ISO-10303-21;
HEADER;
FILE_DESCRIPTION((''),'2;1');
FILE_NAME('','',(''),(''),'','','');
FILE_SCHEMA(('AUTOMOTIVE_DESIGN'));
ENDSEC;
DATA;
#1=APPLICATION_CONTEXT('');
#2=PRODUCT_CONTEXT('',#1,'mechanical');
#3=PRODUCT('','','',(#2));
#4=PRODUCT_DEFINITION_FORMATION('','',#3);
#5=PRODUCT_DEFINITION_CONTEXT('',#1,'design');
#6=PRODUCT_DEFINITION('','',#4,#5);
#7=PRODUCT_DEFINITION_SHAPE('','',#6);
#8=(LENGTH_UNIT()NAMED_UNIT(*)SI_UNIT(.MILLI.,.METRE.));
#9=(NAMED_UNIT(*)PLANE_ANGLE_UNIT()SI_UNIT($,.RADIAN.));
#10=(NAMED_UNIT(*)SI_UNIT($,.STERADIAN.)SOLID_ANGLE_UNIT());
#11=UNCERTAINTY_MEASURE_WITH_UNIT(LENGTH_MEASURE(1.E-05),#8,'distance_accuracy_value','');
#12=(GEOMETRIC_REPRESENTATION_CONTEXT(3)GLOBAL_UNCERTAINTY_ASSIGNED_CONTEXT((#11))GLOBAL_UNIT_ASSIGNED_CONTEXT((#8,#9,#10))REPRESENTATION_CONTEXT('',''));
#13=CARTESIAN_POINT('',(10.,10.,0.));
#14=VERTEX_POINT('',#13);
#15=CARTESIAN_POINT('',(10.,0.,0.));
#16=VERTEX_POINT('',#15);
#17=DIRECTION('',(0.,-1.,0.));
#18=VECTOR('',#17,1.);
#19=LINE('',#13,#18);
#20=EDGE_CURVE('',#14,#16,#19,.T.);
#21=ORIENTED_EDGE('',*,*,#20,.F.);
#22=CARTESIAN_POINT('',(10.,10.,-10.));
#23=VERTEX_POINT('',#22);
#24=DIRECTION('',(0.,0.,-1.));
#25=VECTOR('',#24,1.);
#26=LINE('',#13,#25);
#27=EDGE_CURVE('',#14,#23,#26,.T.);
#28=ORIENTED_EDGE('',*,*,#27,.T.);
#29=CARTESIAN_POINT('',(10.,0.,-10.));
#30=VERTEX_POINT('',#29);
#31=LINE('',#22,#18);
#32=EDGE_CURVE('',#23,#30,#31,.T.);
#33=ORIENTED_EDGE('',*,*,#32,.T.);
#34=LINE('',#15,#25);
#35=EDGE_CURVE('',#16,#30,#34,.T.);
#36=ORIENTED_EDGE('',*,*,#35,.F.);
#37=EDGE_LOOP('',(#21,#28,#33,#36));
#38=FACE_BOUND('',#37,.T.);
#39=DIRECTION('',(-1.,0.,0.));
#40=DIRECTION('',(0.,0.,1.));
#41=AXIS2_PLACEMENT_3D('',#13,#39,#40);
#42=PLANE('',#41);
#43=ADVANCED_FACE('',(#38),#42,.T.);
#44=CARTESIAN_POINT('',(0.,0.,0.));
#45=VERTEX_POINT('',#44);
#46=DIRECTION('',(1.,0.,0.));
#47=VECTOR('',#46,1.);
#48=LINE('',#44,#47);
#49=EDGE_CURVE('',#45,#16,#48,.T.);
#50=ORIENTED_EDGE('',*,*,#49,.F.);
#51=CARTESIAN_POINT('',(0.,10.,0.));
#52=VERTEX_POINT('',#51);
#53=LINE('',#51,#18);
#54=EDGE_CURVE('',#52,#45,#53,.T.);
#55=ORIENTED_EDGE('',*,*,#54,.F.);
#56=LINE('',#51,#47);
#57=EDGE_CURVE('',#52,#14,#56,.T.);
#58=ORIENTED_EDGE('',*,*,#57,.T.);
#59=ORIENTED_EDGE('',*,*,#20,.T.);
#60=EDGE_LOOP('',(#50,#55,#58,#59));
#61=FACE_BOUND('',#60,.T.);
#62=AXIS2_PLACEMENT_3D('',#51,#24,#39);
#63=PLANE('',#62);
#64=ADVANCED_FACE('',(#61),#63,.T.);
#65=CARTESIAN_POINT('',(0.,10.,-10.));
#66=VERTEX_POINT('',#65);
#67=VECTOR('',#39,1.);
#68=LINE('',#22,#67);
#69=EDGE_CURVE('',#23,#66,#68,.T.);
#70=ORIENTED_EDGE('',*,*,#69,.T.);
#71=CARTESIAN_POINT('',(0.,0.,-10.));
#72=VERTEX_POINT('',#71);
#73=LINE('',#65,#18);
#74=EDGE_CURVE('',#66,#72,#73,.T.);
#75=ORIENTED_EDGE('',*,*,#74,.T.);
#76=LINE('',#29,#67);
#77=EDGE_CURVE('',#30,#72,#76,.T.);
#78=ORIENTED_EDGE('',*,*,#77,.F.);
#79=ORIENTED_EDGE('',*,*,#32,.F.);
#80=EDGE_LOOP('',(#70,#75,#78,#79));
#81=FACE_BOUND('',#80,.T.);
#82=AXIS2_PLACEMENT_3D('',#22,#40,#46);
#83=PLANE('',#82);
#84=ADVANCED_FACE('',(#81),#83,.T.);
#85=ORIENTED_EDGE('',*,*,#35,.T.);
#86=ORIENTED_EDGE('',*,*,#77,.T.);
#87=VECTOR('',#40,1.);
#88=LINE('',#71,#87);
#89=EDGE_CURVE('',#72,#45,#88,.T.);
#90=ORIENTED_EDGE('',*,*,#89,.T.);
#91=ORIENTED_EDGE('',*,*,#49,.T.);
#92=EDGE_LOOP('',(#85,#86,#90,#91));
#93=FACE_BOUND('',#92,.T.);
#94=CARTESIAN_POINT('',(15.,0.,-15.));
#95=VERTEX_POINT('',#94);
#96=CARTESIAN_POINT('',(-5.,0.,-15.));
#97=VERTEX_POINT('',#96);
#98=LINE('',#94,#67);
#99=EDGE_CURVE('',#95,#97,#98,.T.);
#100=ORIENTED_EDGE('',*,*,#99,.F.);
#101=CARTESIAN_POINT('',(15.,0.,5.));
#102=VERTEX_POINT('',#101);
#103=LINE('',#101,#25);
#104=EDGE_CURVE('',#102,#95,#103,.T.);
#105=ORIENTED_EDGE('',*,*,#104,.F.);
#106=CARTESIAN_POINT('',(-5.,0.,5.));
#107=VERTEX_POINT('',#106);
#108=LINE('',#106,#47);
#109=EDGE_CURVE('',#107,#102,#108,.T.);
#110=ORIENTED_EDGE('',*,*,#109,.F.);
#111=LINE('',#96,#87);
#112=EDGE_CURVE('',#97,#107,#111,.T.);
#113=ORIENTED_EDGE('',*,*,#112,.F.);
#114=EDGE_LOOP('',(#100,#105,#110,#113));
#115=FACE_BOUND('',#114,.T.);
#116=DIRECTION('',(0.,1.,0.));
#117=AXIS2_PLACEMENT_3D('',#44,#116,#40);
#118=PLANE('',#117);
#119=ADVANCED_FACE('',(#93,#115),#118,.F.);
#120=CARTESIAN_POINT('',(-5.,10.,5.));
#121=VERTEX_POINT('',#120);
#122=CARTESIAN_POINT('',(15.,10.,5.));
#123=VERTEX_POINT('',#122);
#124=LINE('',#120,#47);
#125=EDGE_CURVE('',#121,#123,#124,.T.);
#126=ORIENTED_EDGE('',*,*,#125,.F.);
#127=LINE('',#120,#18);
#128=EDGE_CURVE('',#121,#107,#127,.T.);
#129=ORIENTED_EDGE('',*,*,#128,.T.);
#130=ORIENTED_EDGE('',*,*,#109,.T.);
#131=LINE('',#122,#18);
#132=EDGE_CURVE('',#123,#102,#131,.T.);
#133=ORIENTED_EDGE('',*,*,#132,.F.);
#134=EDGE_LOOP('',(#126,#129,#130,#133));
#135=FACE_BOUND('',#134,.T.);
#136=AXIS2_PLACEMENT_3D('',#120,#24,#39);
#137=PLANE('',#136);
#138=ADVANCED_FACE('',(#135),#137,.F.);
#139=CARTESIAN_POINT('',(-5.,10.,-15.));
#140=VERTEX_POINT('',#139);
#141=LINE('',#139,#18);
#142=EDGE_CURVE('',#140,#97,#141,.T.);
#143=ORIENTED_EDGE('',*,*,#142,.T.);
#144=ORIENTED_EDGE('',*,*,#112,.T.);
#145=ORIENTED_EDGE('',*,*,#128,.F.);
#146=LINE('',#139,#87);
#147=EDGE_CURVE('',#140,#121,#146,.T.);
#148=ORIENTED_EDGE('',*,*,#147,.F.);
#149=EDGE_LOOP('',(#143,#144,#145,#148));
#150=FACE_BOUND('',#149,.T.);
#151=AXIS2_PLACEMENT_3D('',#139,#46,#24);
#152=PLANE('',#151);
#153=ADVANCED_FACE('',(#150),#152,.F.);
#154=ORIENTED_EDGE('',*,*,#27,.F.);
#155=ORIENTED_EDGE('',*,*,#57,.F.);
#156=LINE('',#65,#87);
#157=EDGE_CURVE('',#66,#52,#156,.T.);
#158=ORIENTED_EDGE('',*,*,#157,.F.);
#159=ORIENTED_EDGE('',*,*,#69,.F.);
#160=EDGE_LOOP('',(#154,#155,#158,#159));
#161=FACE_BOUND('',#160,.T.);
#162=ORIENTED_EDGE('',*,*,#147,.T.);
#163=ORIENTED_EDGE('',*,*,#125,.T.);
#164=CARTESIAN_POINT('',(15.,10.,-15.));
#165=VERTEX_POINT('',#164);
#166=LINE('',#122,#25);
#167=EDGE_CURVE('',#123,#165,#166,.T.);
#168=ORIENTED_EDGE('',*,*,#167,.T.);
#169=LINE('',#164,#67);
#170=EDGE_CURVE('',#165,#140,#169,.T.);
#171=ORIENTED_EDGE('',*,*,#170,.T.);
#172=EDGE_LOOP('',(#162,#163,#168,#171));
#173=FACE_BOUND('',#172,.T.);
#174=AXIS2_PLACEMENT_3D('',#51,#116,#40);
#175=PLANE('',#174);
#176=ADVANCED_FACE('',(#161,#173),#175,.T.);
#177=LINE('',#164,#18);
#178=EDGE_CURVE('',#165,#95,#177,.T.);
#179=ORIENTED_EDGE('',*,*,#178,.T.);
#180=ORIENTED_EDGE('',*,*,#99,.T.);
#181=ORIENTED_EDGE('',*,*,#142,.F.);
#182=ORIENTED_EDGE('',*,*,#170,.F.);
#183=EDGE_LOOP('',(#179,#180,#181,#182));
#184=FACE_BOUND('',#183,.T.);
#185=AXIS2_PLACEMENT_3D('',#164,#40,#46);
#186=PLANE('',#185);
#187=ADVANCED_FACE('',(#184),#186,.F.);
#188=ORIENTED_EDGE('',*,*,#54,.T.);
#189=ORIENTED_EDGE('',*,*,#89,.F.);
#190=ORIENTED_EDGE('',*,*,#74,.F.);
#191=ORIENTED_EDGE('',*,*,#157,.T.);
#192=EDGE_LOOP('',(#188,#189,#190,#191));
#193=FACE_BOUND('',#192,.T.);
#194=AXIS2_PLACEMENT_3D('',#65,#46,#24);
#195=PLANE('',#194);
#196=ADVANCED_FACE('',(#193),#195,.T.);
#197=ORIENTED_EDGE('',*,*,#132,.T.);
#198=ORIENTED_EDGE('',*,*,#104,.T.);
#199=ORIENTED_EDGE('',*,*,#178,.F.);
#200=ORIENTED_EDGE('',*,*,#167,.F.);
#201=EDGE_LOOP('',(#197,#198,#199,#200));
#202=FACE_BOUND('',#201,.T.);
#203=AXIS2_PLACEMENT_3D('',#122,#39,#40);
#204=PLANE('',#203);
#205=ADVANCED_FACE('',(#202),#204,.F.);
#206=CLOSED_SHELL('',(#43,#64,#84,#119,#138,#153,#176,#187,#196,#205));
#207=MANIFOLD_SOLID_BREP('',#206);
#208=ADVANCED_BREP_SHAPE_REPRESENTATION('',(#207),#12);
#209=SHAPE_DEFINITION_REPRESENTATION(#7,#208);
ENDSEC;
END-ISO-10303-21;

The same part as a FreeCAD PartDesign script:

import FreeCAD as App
import Part
import Sketcher

V = App.Vector
Q = App.Units.Quantity


def add_polygon(sketch, points):
    """Adds a closed chain of lines whose ends are joined by coincident constraints."""
    first, n = sketch.GeometryCount, len(points)
    for a, b in zip(points, points[1:] + points[:1]):
        sketch.addGeometry(Part.LineSegment(App.Vector(*a, 0), App.Vector(*b, 0)), False)
    for i in range(n):
        sketch.addConstraint(Sketcher.Constraint("Coincident", first + i, 2, first + (i + 1) % n, 1))

doc = App.newDocument("Part")
params = doc.addObject("Spreadsheet::Sheet", "Params")
for row, (alias, value) in enumerate([
    ("sketch1_width", "20 mm"),
    ("sketch1_width2", "10 mm"),
    ("pad1_length", "10 mm"),
], start=1):
    params.set(f"A{row}", alias)
    params.set(f"B{row}", "=" + value)
    params.setAlias(f"B{row}", alias)

body = doc.addObject("PartDesign::Body", "Body")

# Sketch on XZ plane
sketch1 = body.newObject("Sketcher::SketchObject", "Sketch")
sketch1.AttachmentSupport = (doc.getObject("XZ_Plane"), [""])
sketch1.MapMode = "FlatFace"
add_polygon(sketch1, [(-5, -15), (-5, 5), (15, 5), (15, -15)])  # lines 0-3
add_polygon(sketch1, [(10, 0), (0, 0), (0, -10), (10, -10)])  # lines 4-7
sketch1.addConstraint([
    Sketcher.Constraint("Vertical", 0),
    Sketcher.Constraint("Horizontal", 1),
    Sketcher.Constraint("Vertical", 2),
    Sketcher.Constraint("Horizontal", 3),
    Sketcher.Constraint("Horizontal", 4),
    Sketcher.Constraint("Vertical", 5),
    Sketcher.Constraint("Horizontal", 6),
    Sketcher.Constraint("Vertical", 7),
    Sketcher.Constraint("Coincident", 4, 2, -1, 1),
    Sketcher.Constraint("Equal", 3, 0),
    Sketcher.Constraint("Equal", 6, 5),
    Sketcher.Constraint("DistanceX", 1, 1, 1, 2, Q("20 mm")),
    Sketcher.Constraint("DistanceX", 4, 2, 4, 1, Q("10 mm")),
    Sketcher.Constraint("DistanceX", 0, 2, -1, 1, Q("5 mm")),
    Sketcher.Constraint("DistanceY", -1, 1, 0, 2, Q("5 mm")),
])
sketch1.setExpression("Constraints[19]", "Params.sketch1_width")
sketch1.setExpression("Constraints[20]", "Params.sketch1_width2")
pad1 = body.newObject("PartDesign::Pad", "Pad")
pad1.Profile = sketch1
pad1.setExpression("Length", "Params.pad1_length")
pad1.Reversed = True

doc.recompute()
